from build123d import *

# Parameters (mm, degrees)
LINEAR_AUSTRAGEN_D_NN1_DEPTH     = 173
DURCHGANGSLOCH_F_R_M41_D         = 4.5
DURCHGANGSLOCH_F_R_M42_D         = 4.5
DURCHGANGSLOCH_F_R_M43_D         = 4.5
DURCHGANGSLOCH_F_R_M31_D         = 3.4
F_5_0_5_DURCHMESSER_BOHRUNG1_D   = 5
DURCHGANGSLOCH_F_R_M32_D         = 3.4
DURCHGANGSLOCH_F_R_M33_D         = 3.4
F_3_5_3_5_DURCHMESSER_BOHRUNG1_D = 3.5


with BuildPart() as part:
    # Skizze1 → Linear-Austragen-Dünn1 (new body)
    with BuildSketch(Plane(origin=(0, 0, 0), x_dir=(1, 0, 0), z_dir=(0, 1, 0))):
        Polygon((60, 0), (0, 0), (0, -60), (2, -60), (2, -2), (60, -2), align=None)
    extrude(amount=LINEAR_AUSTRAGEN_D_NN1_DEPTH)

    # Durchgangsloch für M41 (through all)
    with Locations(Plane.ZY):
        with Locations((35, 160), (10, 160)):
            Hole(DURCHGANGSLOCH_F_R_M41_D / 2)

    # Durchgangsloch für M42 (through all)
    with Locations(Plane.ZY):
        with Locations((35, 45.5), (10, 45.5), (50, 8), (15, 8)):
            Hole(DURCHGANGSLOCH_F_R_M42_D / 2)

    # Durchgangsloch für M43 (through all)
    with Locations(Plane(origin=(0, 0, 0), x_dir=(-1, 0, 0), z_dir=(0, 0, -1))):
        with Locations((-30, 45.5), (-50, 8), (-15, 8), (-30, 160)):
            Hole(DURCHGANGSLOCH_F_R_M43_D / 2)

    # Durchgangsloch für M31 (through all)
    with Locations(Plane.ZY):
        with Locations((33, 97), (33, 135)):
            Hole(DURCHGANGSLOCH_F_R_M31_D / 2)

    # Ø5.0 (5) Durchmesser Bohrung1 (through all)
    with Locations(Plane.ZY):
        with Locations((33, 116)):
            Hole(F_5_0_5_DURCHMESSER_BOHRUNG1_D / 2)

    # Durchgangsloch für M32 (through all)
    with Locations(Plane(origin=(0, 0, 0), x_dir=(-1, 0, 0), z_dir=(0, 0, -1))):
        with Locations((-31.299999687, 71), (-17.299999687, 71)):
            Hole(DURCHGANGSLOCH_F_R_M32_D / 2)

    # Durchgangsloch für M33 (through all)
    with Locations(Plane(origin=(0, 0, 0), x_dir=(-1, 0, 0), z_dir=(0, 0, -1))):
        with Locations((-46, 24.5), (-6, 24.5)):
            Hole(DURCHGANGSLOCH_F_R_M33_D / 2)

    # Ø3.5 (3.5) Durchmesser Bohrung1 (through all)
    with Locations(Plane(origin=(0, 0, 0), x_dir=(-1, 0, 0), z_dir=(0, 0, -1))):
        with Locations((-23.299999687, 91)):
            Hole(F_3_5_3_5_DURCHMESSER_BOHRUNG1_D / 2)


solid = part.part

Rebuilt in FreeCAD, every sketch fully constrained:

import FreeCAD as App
import Part
import Sketcher
Q = App.Units.Quantity

doc = App.newDocument("Part")
body = doc.addObject("PartDesign::Body", "Body")

# Sketch on XZ plane
sketch1 = body.newObject("Sketcher::SketchObject", "Sketch")
sketch1.AttachmentSupport = (doc.getObject("XZ_Plane"), [""])
sketch1.MapMode = "FlatFace"
sketch1.addGeometry([
    Part.LineSegment(App.Vector(60, 0, 0), App.Vector(0, 0, 0)),  # 0
    Part.LineSegment(App.Vector(0, 0, 0), App.Vector(0, 60, 0)),  # 1
    Part.LineSegment(App.Vector(0, 60, 0), App.Vector(2, 60, 0)),  # 2
    Part.LineSegment(App.Vector(2, 60, 0), App.Vector(2, 2, 0)),  # 3
    Part.LineSegment(App.Vector(2, 2, 0), App.Vector(60, 2, 0)),  # 4
    Part.LineSegment(App.Vector(60, 2, 0), App.Vector(60, 0, 0)),  # 5
], False)
sketch1.addConstraint([
    Sketcher.Constraint("Coincident", 0, 2, 1, 1),
    Sketcher.Constraint("Coincident", 1, 2, 2, 1),
    Sketcher.Constraint("Coincident", 2, 2, 3, 1),
    Sketcher.Constraint("Coincident", 3, 2, 4, 1),
    Sketcher.Constraint("Coincident", 4, 2, 5, 1),
    Sketcher.Constraint("Coincident", 5, 2, 0, 1),
    Sketcher.Constraint("Horizontal", 0),
    Sketcher.Constraint("Vertical", 1),
    Sketcher.Constraint("Horizontal", 2),
    Sketcher.Constraint("Vertical", 3),
    Sketcher.Constraint("Horizontal", 4),
    Sketcher.Constraint("Vertical", 5),
    Sketcher.Constraint("Coincident", 0, 2, -1, 1),
    Sketcher.Constraint("Equal", 0, 1),
    Sketcher.Constraint("Equal", 4, 3),
    Sketcher.Constraint("DistanceX", 0, 2, 0, 1, Q("60 mm")),
    Sketcher.Constraint("DistanceX", 2, 1, 2, 2, Q("2 mm")),
])
pad1 = body.newObject("PartDesign::Pad", "Pad")
pad1.Profile = sketch1
pad1.Length = 173
pad1.Reversed = True

# Sketch on YZ plane
sketch2 = body.newObject("Sketcher::SketchObject", "Sketch001")
sketch2.AttachmentSupport = (doc.getObject("YZ_Plane"), [""])
sketch2.MapMode = "FlatFace"
sketch2.addGeometry([
    Part.Circle(App.Vector(160, 35, 0), App.Vector(0, 0, 1), 2.25),
    Part.Circle(App.Vector(160, 10, 0), App.Vector(0, 0, 1), 2.25),
], False)
sketch2.addConstraint([
    Sketcher.Constraint("Equal", 0, 1),
    Sketcher.Constraint("Vertical", 0, 3, 1, 3),
    Sketcher.Constraint("Diameter", 0, Q("4.5 mm")),
    Sketcher.Constraint("DistanceX", -1, 1, 0, 3, Q("160 mm")),
    Sketcher.Constraint("DistanceY", -1, 1, 0, 3, Q("35 mm")),
    Sketcher.Constraint("DistanceY", -1, 1, 1, 3, Q("10 mm")),
])
doc.recompute()
hole = body.newObject("PartDesign::Hole", "Hole")
hole.Profile = sketch2
hole.ThreadType = "None"
hole.Diameter = 4.5
hole.DepthType = "ThroughAll"
hole.Reversed = True

# Sketch on YZ plane
sketch3 = body.newObject("Sketcher::SketchObject", "Sketch002")
sketch3.AttachmentSupport = (doc.getObject("YZ_Plane"), [""])
sketch3.MapMode = "FlatFace"
sketch3.addGeometry([
    Part.Circle(App.Vector(45.5, 35, 0), App.Vector(0, 0, 1), 2.25),
    Part.Circle(App.Vector(45.5, 10, 0), App.Vector(0, 0, 1), 2.25),
    Part.Circle(App.Vector(8, 50, 0), App.Vector(0, 0, 1), 2.25),
    Part.Circle(App.Vector(8, 15, 0), App.Vector(0, 0, 1), 2.25),
], False)
sketch3.addConstraint([
    Sketcher.Constraint("Equal", 0, 1),
    Sketcher.Constraint("Equal", 1, 2),
    Sketcher.Constraint("Equal", 2, 3),
    Sketcher.Constraint("Vertical", 0, 3, 1, 3),
    Sketcher.Constraint("Vertical", 2, 3, 3, 3),
    Sketcher.Constraint("Diameter", 0, Q("4.5 mm")),
    Sketcher.Constraint("DistanceY", -1, 1, 0, 3, Q("35 mm")),
    Sketcher.Constraint("DistanceY", -1, 1, 1, 3, Q("10 mm")),
    Sketcher.Constraint("DistanceX", -1, 1, 2, 3, Q("8 mm")),
    Sketcher.Constraint("DistanceY", -1, 1, 2, 3, Q("50 mm")),
    Sketcher.Constraint("DistanceY", -1, 1, 3, 3, Q("15 mm")),
    Sketcher.Constraint("DistanceX", -1, 1, 0, 3, Q("45.5 mm")),
])
doc.recompute()
hole2 = body.newObject("PartDesign::Hole", "Hole001")
hole2.Profile = sketch3
hole2.ThreadType = "None"
hole2.Diameter = 4.5
hole2.DepthType = "ThroughAll"
hole2.Reversed = True

# Sketch on XY plane
sketch4 = body.newObject("Sketcher::SketchObject", "Sketch003")
sketch4.AttachmentSupport = (doc.getObject("XY_Plane"), [""])
sketch4.MapMode = "FlatFace"
sketch4.addGeometry([
    Part.Circle(App.Vector(30, 45.5, 0), App.Vector(0, 0, 1), 2.25),
    Part.Circle(App.Vector(50, 8, 0), App.Vector(0, 0, 1), 2.25),
    Part.Circle(App.Vector(15, 8, 0), App.Vector(0, 0, 1), 2.25),
    Part.Circle(App.Vector(30, 160, 0), App.Vector(0, 0, 1), 2.25),
], False)
sketch4.addConstraint([
    Sketcher.Constraint("Equal", 0, 1),
    Sketcher.Constraint("Equal", 1, 2),
    Sketcher.Constraint("Equal", 2, 3),
    Sketcher.Constraint("Horizontal", 1, 3, 2, 3),
    Sketcher.Constraint("Vertical", 0, 3, 3, 3),
    Sketcher.Constraint("Diameter", 0, Q("4.5 mm")),
    Sketcher.Constraint("DistanceX", -1, 1, 0, 3, Q("30 mm")),
    Sketcher.Constraint("DistanceX", -1, 1, 1, 3, Q("50 mm")),
    Sketcher.Constraint("DistanceY", -1, 1, 1, 3, Q("8 mm")),
    Sketcher.Constraint("DistanceX", -1, 1, 2, 3, Q("15 mm")),
    Sketcher.Constraint("DistanceY", -1, 1, 3, 3, Q("160 mm")),
    Sketcher.Constraint("DistanceY", -1, 1, 0, 3, Q("45.5 mm")),
])
doc.recompute()
hole3 = body.newObject("PartDesign::Hole", "Hole002")
hole3.Profile = sketch4
hole3.ThreadType = "None"
hole3.Diameter = 4.5
hole3.DepthType = "ThroughAll"
hole3.Reversed = True

# Sketch on YZ plane
sketch5 = body.newObject("Sketcher::SketchObject", "Sketch004")
sketch5.AttachmentSupport = (doc.getObject("YZ_Plane"), [""])
sketch5.MapMode = "FlatFace"
sketch5.addGeometry([
    Part.Circle(App.Vector(97, 33, 0), App.Vector(0, 0, 1), 1.7),
    Part.Circle(App.Vector(135, 33, 0), App.Vector(0, 0, 1), 1.7),
], False)
sketch5.addConstraint([
    Sketcher.Constraint("Equal", 0, 1),
    Sketcher.Constraint("Horizontal", 0, 3, 1, 3),
    Sketcher.Constraint("Diameter", 0, Q("3.4 mm")),
    Sketcher.Constraint("DistanceX", -1, 1, 0, 3, Q("97 mm")),
    Sketcher.Constraint("DistanceY", -1, 1, 0, 3, Q("33 mm")),
    Sketcher.Constraint("DistanceX", -1, 1, 1, 3, Q("135 mm")),
])
doc.recompute()
hole4 = body.newObject("PartDesign::Hole", "Hole003")
hole4.Profile = sketch5
hole4.ThreadType = "None"
hole4.Diameter = 3.4
hole4.DepthType = "ThroughAll"
hole4.Reversed = True

# Sketch on YZ plane
sketch6 = body.newObject("Sketcher::SketchObject", "Sketch005")
sketch6.AttachmentSupport = (doc.getObject("YZ_Plane"), [""])
sketch6.MapMode = "FlatFace"
sketch6.addGeometry(Part.Circle(App.Vector(116, 33, 0), App.Vector(0, 0, 1), 2.5), False)
sketch6.addConstraint([
    Sketcher.Constraint("Diameter", 0, Q("5 mm")),
    Sketcher.Constraint("DistanceX", -1, 1, 0, 3, Q("116 mm")),
    Sketcher.Constraint("DistanceY", -1, 1, 0, 3, Q("33 mm")),
])
doc.recompute()
hole5 = body.newObject("PartDesign::Hole", "Hole004")
hole5.Profile = sketch6
hole5.ThreadType = "None"
hole5.Diameter = 5
hole5.DepthType = "ThroughAll"
hole5.Reversed = True

# Sketch on XY plane
sketch7 = body.newObject("Sketcher::SketchObject", "Sketch006")
sketch7.AttachmentSupport = (doc.getObject("XY_Plane"), [""])
sketch7.MapMode = "FlatFace"
sketch7.addGeometry([
    Part.Circle(App.Vector(31.3, 71, 0), App.Vector(0, 0, 1), 1.7),
    Part.Circle(App.Vector(17.3, 71, 0), App.Vector(0, 0, 1), 1.7),
], False)
sketch7.addConstraint([
    Sketcher.Constraint("Equal", 0, 1),
    Sketcher.Constraint("Horizontal", 0, 3, 1, 3),
    Sketcher.Constraint("Diameter", 0, Q("3.4 mm")),
    Sketcher.Constraint("DistanceY", -1, 1, 0, 3, Q("71 mm")),
    Sketcher.Constraint("DistanceX", 1, 3, 0, 3, Q("14 mm")),
    Sketcher.Constraint("DistanceX", -1, 1, 0, 3, Q("31.3 mm")),
])
doc.recompute()
hole6 = body.newObject("PartDesign::Hole", "Hole005")
hole6.Profile = sketch7
hole6.ThreadType = "None"
hole6.Diameter = 3.4
hole6.DepthType = "ThroughAll"
hole6.Reversed = True

# Sketch on XY plane
sketch8 = body.newObject("Sketcher::SketchObject", "Sketch007")
sketch8.AttachmentSupport = (doc.getObject("XY_Plane"), [""])
sketch8.MapMode = "FlatFace"
sketch8.addGeometry([
    Part.Circle(App.Vector(46, 24.5, 0), App.Vector(0, 0, 1), 1.7),
    Part.Circle(App.Vector(6, 24.5, 0), App.Vector(0, 0, 1), 1.7),
], False)
sketch8.addConstraint([
    Sketcher.Constraint("Equal", 0, 1),
    Sketcher.Constraint("Horizontal", 0, 3, 1, 3),
    Sketcher.Constraint("Diameter", 0, Q("3.4 mm")),
    Sketcher.Constraint("DistanceX", -1, 1, 0, 3, Q("46 mm")),
    Sketcher.Constraint("DistanceX", -1, 1, 1, 3, Q("6 mm")),
    Sketcher.Constraint("DistanceY", -1, 1, 0, 3, Q("24.5 mm")),
])
doc.recompute()
hole7 = body.newObject("PartDesign::Hole", "Hole006")
hole7.Profile = sketch8
hole7.ThreadType = "None"
hole7.Diameter = 3.4
hole7.DepthType = "ThroughAll"
hole7.Reversed = True

# Sketch on XY plane
sketch9 = body.newObject("Sketcher::SketchObject", "Sketch008")
sketch9.AttachmentSupport = (doc.getObject("XY_Plane"), [""])
sketch9.MapMode = "FlatFace"
sketch9.addGeometry(Part.Circle(App.Vector(23.3, 91, 0), App.Vector(0, 0, 1), 1.75), False)
sketch9.addConstraint([
    Sketcher.Constraint("Diameter", 0, Q("3.5 mm")),
    Sketcher.Constraint("DistanceY", -1, 1, 0, 3, Q("91 mm")),
    Sketcher.Constraint("DistanceX", -1, 1, 0, 3, Q("23.3 mm")),
])
doc.recompute()
hole8 = body.newObject("PartDesign::Hole", "Hole007")
hole8.Profile = sketch9
hole8.ThreadType = "None"
hole8.Diameter = 3.5
hole8.DepthType = "ThroughAll"
hole8.Reversed = True

doc.recompute()
